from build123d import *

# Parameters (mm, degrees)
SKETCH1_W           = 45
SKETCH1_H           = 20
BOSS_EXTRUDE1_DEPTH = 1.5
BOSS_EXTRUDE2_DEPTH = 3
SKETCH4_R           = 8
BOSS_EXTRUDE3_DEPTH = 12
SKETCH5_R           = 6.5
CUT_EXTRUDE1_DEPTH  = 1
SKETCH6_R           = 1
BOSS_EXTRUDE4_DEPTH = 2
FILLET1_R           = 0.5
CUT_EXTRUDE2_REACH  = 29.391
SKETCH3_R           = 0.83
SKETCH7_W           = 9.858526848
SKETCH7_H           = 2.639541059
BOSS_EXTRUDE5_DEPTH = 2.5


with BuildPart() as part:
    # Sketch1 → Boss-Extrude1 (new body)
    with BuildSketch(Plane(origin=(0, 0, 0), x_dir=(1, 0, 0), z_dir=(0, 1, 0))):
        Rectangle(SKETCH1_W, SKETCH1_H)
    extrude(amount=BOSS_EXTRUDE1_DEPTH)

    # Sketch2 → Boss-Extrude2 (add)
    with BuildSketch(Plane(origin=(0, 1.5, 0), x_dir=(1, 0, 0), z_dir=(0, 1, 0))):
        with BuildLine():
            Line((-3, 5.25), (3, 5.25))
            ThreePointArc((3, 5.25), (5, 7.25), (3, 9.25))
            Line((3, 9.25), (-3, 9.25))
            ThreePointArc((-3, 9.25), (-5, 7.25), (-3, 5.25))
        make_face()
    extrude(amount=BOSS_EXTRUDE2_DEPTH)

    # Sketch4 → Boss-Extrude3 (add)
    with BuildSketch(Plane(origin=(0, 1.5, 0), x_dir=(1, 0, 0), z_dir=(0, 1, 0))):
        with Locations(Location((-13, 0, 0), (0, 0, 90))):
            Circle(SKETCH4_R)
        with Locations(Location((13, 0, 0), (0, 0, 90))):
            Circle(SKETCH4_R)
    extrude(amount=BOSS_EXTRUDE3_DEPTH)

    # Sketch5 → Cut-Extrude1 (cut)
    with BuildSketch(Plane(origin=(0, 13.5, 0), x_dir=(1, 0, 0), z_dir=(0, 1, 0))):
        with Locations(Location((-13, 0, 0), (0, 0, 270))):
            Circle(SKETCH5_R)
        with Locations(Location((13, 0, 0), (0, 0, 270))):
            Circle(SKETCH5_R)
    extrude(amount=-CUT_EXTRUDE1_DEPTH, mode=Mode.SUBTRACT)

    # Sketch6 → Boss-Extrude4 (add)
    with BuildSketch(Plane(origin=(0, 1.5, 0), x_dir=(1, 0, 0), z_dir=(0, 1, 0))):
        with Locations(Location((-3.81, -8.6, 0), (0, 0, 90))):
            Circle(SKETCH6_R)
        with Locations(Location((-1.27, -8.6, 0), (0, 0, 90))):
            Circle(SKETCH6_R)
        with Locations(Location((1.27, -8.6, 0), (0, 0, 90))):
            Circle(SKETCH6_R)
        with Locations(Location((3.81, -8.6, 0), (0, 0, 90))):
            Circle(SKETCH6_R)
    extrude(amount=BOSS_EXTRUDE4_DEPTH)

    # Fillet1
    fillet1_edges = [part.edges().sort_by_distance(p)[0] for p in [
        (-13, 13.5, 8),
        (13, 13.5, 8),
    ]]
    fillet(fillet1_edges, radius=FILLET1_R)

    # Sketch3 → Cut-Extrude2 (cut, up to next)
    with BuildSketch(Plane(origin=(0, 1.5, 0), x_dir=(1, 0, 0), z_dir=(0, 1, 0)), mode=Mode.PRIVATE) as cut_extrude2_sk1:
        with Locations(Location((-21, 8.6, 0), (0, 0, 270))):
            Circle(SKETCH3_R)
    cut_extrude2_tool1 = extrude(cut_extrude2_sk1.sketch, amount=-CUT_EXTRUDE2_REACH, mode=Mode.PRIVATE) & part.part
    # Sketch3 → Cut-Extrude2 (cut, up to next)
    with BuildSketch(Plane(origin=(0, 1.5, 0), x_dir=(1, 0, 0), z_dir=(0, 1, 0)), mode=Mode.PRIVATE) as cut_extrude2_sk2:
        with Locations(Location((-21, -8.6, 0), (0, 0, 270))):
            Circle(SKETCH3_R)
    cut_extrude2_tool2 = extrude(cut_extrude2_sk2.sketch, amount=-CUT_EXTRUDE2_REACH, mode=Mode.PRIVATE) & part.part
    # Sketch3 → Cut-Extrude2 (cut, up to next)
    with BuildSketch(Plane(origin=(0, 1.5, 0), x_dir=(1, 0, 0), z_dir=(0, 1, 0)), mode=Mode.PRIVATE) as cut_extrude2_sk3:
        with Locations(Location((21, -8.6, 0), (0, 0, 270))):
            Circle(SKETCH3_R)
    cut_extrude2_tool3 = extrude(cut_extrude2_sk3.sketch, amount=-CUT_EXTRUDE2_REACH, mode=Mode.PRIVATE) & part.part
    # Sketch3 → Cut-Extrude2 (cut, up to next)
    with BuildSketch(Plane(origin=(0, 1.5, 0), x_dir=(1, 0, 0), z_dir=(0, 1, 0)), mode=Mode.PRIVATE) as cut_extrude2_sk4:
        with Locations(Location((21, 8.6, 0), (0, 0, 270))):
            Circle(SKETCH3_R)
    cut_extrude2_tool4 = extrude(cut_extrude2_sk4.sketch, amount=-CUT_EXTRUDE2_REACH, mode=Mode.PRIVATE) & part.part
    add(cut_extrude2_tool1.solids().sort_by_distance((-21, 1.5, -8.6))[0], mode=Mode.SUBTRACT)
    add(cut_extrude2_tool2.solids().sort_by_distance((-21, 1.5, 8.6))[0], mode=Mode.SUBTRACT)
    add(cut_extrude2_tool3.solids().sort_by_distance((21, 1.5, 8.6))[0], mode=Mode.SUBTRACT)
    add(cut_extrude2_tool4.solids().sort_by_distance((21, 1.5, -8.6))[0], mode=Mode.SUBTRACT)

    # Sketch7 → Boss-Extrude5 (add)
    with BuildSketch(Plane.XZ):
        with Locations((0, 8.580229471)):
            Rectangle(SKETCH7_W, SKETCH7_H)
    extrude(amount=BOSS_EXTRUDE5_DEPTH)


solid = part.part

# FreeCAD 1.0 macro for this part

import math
import FreeCAD as App
import Part
import Sketcher


def edges_at(feature, points):
    """Names of the edges that pass closest to the given points."""
    edges = feature.Shape.Edges
    near = lambda p: min(range(len(edges)), key=lambda i: edges[i].distToShape(Part.Vertex(*p))[0])
    return sorted({f"Edge{near(p) + 1}" for p in points})

doc = App.newDocument("Part")
params = doc.addObject("Spreadsheet::Sheet", "Params")
for row, (alias, value) in enumerate([
    ("sketch1_width", "45 mm"),
    ("sketch1_height", "20 mm"),
    ("pad1_length", "1.5 mm"),
    ("sketch2_radius", "2 mm"),
    ("sketch2_width", "6 mm"),
    ("pad2_length", "3 mm"),
    ("sketch3_diameter", "16 mm"),
    ("pad3_length", "12 mm"),
    ("sketch4_diameter", "13 mm"),
    ("pocket1_length", "1 mm"),
    ("sketch5_diameter", "2 mm"),
    ("pad4_length", "2 mm"),
    ("fillet_radius", "0.5 mm"),
    ("sketch6_diameter", "1.66 mm"),
    ("sketch7_diameter", "1.66 mm"),
    ("sketch8_diameter", "1.66 mm"),
    ("sketch9_diameter", "1.66 mm"),
    ("pad5_length", "2.5 mm"),
], start=1):
    params.set(f"A{row}", alias)
    params.set(f"B{row}", "=" + value)
    params.setAlias(f"B{row}", alias)

body = doc.addObject("PartDesign::Body", "Body")

# Sketch on XZ plane
sketch1 = doc.addObject("Sketcher::SketchObject", "Sketch")
body.addObject(sketch1)
sketch1.AttachmentSupport = (doc.XZ_Plane, [""])
sketch1.MapMode = "FlatFace"
sketch1.addGeometry([
    Part.LineSegment(App.Vector(-22, -10, 0), App.Vector(-22, 10, 0)),
    Part.LineSegment(App.Vector(-22, 10, 0), App.Vector(22, 10, 0)),
    Part.LineSegment(App.Vector(22, 10, 0), App.Vector(22, -10, 0)),
    Part.LineSegment(App.Vector(22, -10, 0), App.Vector(-22, -10, 0)),
], False)
sketch1.addConstraint([
    Sketcher.Constraint("Coincident", 0, 2, 1, 1),
    Sketcher.Constraint("Coincident", 1, 2, 2, 1),
    Sketcher.Constraint("Coincident", 2, 2, 3, 1),
    Sketcher.Constraint("Coincident", 3, 2, 0, 1),
    Sketcher.Constraint("Vertical", 0),
    Sketcher.Constraint("Horizontal", 1),
    Sketcher.Constraint("Vertical", 2),
    Sketcher.Constraint("Horizontal", 3),
    Sketcher.Constraint("Symmetric", 0, 2, 2, 2, -1, 1),
    Sketcher.Constraint("DistanceX", 1, 1, 1, 2, 45.0),
    Sketcher.Constraint("DistanceY", 0, 1, 0, 2, 20.0),
])
sketch1.setExpression("Constraints[9]", "Params.sketch1_width")
sketch1.setExpression("Constraints[10]", "Params.sketch1_height")
pad1 = doc.addObject("PartDesign::Pad", "Pad")
body.addObject(pad1)
pad1.Profile = sketch1
pad1.setExpression("Length", "Params.pad1_length")
pad1.Reversed = True

# Sketch on XZ plane
sketch2 = doc.addObject("Sketcher::SketchObject", "Sketch001")
body.addObject(sketch2)
sketch2.AttachmentSupport = (doc.XZ_Plane, [""])
sketch2.MapMode = "FlatFace"
sketch2.AttachmentOffset = App.Placement(App.Vector(0, 0, -1.5), App.Rotation())
sketch2.addGeometry([
    Part.LineSegment(App.Vector(-3, -5.2, 0), App.Vector(3, -5.2, 0)),
    Part.ArcOfCircle(Part.Circle(App.Vector(3, -7.2, 0), App.Vector(0, 0, 1), 2), math.radians(-90), math.radians(90)),
    Part.LineSegment(App.Vector(3, -9.2, 0), App.Vector(-3, -9.2, 0)),
    Part.ArcOfCircle(Part.Circle(App.Vector(-3, -7.2, 0), App.Vector(0, 0, 1), 2), math.radians(90), math.radians(270)),
], False)
sketch2.addConstraint([
    Sketcher.Constraint("Tangent", 0, 2, 1, 2),
    Sketcher.Constraint("Tangent", 1, 1, 2, 1),
    Sketcher.Constraint("Tangent", 2, 2, 3, 2),
    Sketcher.Constraint("Tangent", 3, 1, 0, 1),
    Sketcher.Constraint("Horizontal", 0),
    Sketcher.Constraint("Horizontal", 2),
    Sketcher.Constraint("Radius", 1, 2.0),
    Sketcher.Constraint("DistanceX", 0, 1, 0, 2, 6.0),
    Sketcher.Constraint("DistanceX", -1, 1, 1, 3, 3.0),
    Sketcher.Constraint("DistanceY", 1, 3, -1, 1, 7.25),
])
sketch2.setExpression("Constraints[6]", "Params.sketch2_radius")
sketch2.setExpression("Constraints[7]", "Params.sketch2_width")
pad2 = doc.addObject("PartDesign::Pad", "Pad001")
body.addObject(pad2)
pad2.Profile = sketch2
pad2.setExpression("Length", "Params.pad2_length")
pad2.Reversed = True

# Sketch on XZ plane
sketch3 = doc.addObject("Sketcher::SketchObject", "Sketch002")
body.addObject(sketch3)
sketch3.AttachmentSupport = (doc.XZ_Plane, [""])
sketch3.MapMode = "FlatFace"
sketch3.AttachmentOffset = App.Placement(App.Vector(0, 0, -1.5), App.Rotation())
sketch3.addGeometry([
    Part.Circle(App.Vector(-13, 0, 0), App.Vector(0, 0, 1), 8),
    Part.Circle(App.Vector(13, 0, 0), App.Vector(0, 0, 1), 8),
], False)
sketch3.addConstraint([
    Sketcher.Constraint("Equal", 0, 1),
    Sketcher.Constraint("Symmetric", 0, 3, 1, 3, -1, 1),
    Sketcher.Constraint("PointOnObject", 0, 3, -1),
    Sketcher.Constraint("Diameter", 0, 16.0),
    Sketcher.Constraint("DistanceX", 0, 3, -1, 1, 13.0),
])
sketch3.setExpression("Constraints[3]", "Params.sketch3_diameter")
pad3 = doc.addObject("PartDesign::Pad", "Pad002")
body.addObject(pad3)
pad3.Profile = sketch3
pad3.setExpression("Length", "Params.pad3_length")
pad3.Reversed = True

# Sketch on XZ plane
sketch4 = doc.addObject("Sketcher::SketchObject", "Sketch003")
body.addObject(sketch4)
sketch4.AttachmentSupport = (doc.XZ_Plane, [""])
sketch4.MapMode = "FlatFace"
sketch4.AttachmentOffset = App.Placement(App.Vector(0, 0, -13.5), App.Rotation())
sketch4.addGeometry([
    Part.Circle(App.Vector(-13, 0, 0), App.Vector(0, 0, 1), 6),
    Part.Circle(App.Vector(13, 0, 0), App.Vector(0, 0, 1), 6),
], False)
sketch4.addConstraint([
    Sketcher.Constraint("Equal", 0, 1),
    Sketcher.Constraint("Symmetric", 0, 3, 1, 3, -1, 1),
    Sketcher.Constraint("PointOnObject", 0, 3, -1),
    Sketcher.Constraint("Diameter", 0, 13.0),
    Sketcher.Constraint("DistanceX", 0, 3, -1, 1, 13.0),
])
sketch4.setExpression("Constraints[3]", "Params.sketch4_diameter")
pocket1 = doc.addObject("PartDesign::Pocket", "Pocket")
body.addObject(pocket1)
pocket1.Profile = sketch4
pocket1.setExpression("Length", "Params.pocket1_length")
pocket1.Reversed = True

# Sketch on XZ plane
sketch5 = doc.addObject("Sketcher::SketchObject", "Sketch004")
body.addObject(sketch5)
sketch5.AttachmentSupport = (doc.XZ_Plane, [""])
sketch5.MapMode = "FlatFace"
sketch5.AttachmentOffset = App.Placement(App.Vector(0, 0, -1.5), App.Rotation())
sketch5.addGeometry([
    Part.Circle(App.Vector(-3.8, 8.6, 0), App.Vector(0, 0, 1), 1),
    Part.Circle(App.Vector(-1.3, 8.6, 0), App.Vector(0, 0, 1), 1),
    Part.Circle(App.Vector(1.3, 8.6, 0), App.Vector(0, 0, 1), 1),
    Part.Circle(App.Vector(3.8, 8.6, 0), App.Vector(0, 0, 1), 1),
], False)
sketch5.addConstraint([
    Sketcher.Constraint("Equal", 0, 1),
    Sketcher.Constraint("Equal", 1, 2),
    Sketcher.Constraint("Equal", 2, 3),
    Sketcher.Constraint("Symmetric", 1, 3, 2, 3, -2),
    Sketcher.Constraint("Symmetric", 0, 3, 3, 3, -2),
    Sketcher.Constraint("Horizontal", 0, 3, 1, 3),
    Sketcher.Constraint("Diameter", 0, 2.0),
    Sketcher.Constraint("DistanceY", -1, 1, 0, 3, 8.6),
    Sketcher.Constraint("DistanceX", 0, 3, -1, 1, 3.81),
    Sketcher.Constraint("DistanceX", 1, 3, -1, 1, 1.27),
])
sketch5.setExpression("Constraints[6]", "Params.sketch5_diameter")
pad4 = doc.addObject("PartDesign::Pad", "Pad003")
body.addObject(pad4)
pad4.Profile = sketch5
pad4.setExpression("Length", "Params.pad4_length")
pad4.Reversed = True
doc.recompute()

fillet = doc.addObject("PartDesign::Fillet", "Fillet")
body.addObject(fillet)
fillet.Base = (pad4, edges_at(pad4, [(-13, 13.5, 8), (13, 13.5, 8)]))
fillet.setExpression("Radius", "Params.fillet_radius")

# Sketch on XZ plane
sketch6 = doc.addObject("Sketcher::SketchObject", "Sketch005")
body.addObject(sketch6)
sketch6.AttachmentSupport = (doc.XZ_Plane, [""])
sketch6.MapMode = "FlatFace"
sketch6.AttachmentOffset = App.Placement(App.Vector(0, 0, -1.5), App.Rotation())
sketch6.addGeometry(Part.Circle(App.Vector(-21, -8.6, 0), App.Vector(0, 0, 1), 0.8), False)
sketch6.addConstraint([
    Sketcher.Constraint("Diameter", 0, 1.66),
    Sketcher.Constraint("DistanceX", 0, 3, -1, 1, 21.0),
    Sketcher.Constraint("DistanceY", 0, 3, -1, 1, 8.6),
])
sketch6.setExpression("Constraints[0]", "Params.sketch6_diameter")
pocket2 = doc.addObject("PartDesign::Pocket", "Pocket001")
body.addObject(pocket2)
pocket2.Profile = sketch6
pocket2.Type = "UpToFirst"
pocket2.Reversed = True

# Sketch on XZ plane
sketch7 = doc.addObject("Sketcher::SketchObject", "Sketch006")
body.addObject(sketch7)
sketch7.AttachmentSupport = (doc.XZ_Plane, [""])
sketch7.MapMode = "FlatFace"
sketch7.AttachmentOffset = App.Placement(App.Vector(0, 0, -1.5), App.Rotation())
sketch7.addGeometry(Part.Circle(App.Vector(-21, 8.6, 0), App.Vector(0, 0, 1), 0.8), False)
sketch7.addConstraint([
    Sketcher.Constraint("Diameter", 0, 1.66),
    Sketcher.Constraint("DistanceX", 0, 3, -1, 1, 21.0),
    Sketcher.Constraint("DistanceY", -1, 1, 0, 3, 8.6),
])
sketch7.setExpression("Constraints[0]", "Params.sketch7_diameter")
pocket3 = doc.addObject("PartDesign::Pocket", "Pocket002")
body.addObject(pocket3)
pocket3.Profile = sketch7
pocket3.Type = "UpToFirst"
pocket3.Reversed = True

# Sketch on XZ plane
sketch8 = doc.addObject("Sketcher::SketchObject", "Sketch007")
body.addObject(sketch8)
sketch8.AttachmentSupport = (doc.XZ_Plane, [""])
sketch8.MapMode = "FlatFace"
sketch8.AttachmentOffset = App.Placement(App.Vector(0, 0, -1.5), App.Rotation())
sketch8.addGeometry(Part.Circle(App.Vector(21, 8.6, 0), App.Vector(0, 0, 1), 0.8), False)
sketch8.addConstraint([
    Sketcher.Constraint("Diameter", 0, 1.66),
    Sketcher.Constraint("DistanceX", -1, 1, 0, 3, 21.0),
    Sketcher.Constraint("DistanceY", -1, 1, 0, 3, 8.6),
])
sketch8.setExpression("Constraints[0]", "Params.sketch8_diameter")
pocket4 = doc.addObject("PartDesign::Pocket", "Pocket003")
body.addObject(pocket4)
pocket4.Profile = sketch8
pocket4.Type = "UpToFirst"
pocket4.Reversed = True

# Sketch on XZ plane
sketch9 = doc.addObject("Sketcher::SketchObject", "Sketch008")
body.addObject(sketch9)
sketch9.AttachmentSupport = (doc.XZ_Plane, [""])
sketch9.MapMode = "FlatFace"
sketch9.AttachmentOffset = App.Placement(App.Vector(0, 0, -1.5), App.Rotation())
sketch9.addGeometry(Part.Circle(App.Vector(21, -8.6, 0), App.Vector(0, 0, 1), 0.8), False)
sketch9.addConstraint([
    Sketcher.Constraint("Diameter", 0, 1.66),
    Sketcher.Constraint("DistanceX", -1, 1, 0, 3, 21.0),
    Sketcher.Constraint("DistanceY", 0, 3, -1, 1, 8.6),
])
sketch9.setExpression("Constraints[0]", "Params.sketch9_diameter")
pocket5 = doc.addObject("PartDesign::Pocket", "Pocket004")
body.addObject(pocket5)
pocket5.Profile = sketch9
pocket5.Type = "UpToFirst"
pocket5.Reversed = True

# Sketch on XZ plane
sketch10 = doc.addObject("Sketcher::SketchObject", "Sketch009")
body.addObject(sketch10)
sketch10.AttachmentSupport = (doc.XZ_Plane, [""])
sketch10.MapMode = "FlatFace"
sketch10.addGeometry([
    Part.LineSegment(App.Vector(-4.9, 9.9, 0), App.Vector(-4.9, 7.3, 0)),
    Part.LineSegment(App.Vector(-4.9, 7.3, 0), App.Vector(4.9, 7.3, 0)),
    Part.LineSegment(App.Vector(4.9, 7.3, 0), App.Vector(4.9, 9.9, 0)),
    Part.LineSegment(App.Vector(4.9, 9.9, 0), App.Vector(-4.9, 9.9, 0)),
], False)
sketch10.addConstraint([
    Sketcher.Constraint("Coincident", 0, 2, 1, 1),
    Sketcher.Constraint("Coincident", 1, 2, 2, 1),
    Sketcher.Constraint("Coincident", 2, 2, 3, 1),
    Sketcher.Constraint("Coincident", 3, 2, 0, 1),
    Sketcher.Constraint("Vertical", 0),
    Sketcher.Constraint("Horizontal", 1),
    Sketcher.Constraint("Vertical", 2),
    Sketcher.Constraint("Horizontal", 3),
    Sketcher.Constraint("DistanceY", -1, 1, 2, 2, 9.9),
    Sketcher.Constraint("DistanceY", 0, 2, 0, 1, 2.639541),
    Sketcher.Constraint("DistanceX", 1, 1, 1, 2, 9.858527),
    Sketcher.Constraint("DistanceX", 0, 2, -1, 1, 4.929263),
])
pad5 = doc.addObject("PartDesign::Pad", "Pad004")
body.addObject(pad5)
pad5.Profile = sketch10
pad5.setExpression("Length", "Params.pad5_length")

doc.recompute()
